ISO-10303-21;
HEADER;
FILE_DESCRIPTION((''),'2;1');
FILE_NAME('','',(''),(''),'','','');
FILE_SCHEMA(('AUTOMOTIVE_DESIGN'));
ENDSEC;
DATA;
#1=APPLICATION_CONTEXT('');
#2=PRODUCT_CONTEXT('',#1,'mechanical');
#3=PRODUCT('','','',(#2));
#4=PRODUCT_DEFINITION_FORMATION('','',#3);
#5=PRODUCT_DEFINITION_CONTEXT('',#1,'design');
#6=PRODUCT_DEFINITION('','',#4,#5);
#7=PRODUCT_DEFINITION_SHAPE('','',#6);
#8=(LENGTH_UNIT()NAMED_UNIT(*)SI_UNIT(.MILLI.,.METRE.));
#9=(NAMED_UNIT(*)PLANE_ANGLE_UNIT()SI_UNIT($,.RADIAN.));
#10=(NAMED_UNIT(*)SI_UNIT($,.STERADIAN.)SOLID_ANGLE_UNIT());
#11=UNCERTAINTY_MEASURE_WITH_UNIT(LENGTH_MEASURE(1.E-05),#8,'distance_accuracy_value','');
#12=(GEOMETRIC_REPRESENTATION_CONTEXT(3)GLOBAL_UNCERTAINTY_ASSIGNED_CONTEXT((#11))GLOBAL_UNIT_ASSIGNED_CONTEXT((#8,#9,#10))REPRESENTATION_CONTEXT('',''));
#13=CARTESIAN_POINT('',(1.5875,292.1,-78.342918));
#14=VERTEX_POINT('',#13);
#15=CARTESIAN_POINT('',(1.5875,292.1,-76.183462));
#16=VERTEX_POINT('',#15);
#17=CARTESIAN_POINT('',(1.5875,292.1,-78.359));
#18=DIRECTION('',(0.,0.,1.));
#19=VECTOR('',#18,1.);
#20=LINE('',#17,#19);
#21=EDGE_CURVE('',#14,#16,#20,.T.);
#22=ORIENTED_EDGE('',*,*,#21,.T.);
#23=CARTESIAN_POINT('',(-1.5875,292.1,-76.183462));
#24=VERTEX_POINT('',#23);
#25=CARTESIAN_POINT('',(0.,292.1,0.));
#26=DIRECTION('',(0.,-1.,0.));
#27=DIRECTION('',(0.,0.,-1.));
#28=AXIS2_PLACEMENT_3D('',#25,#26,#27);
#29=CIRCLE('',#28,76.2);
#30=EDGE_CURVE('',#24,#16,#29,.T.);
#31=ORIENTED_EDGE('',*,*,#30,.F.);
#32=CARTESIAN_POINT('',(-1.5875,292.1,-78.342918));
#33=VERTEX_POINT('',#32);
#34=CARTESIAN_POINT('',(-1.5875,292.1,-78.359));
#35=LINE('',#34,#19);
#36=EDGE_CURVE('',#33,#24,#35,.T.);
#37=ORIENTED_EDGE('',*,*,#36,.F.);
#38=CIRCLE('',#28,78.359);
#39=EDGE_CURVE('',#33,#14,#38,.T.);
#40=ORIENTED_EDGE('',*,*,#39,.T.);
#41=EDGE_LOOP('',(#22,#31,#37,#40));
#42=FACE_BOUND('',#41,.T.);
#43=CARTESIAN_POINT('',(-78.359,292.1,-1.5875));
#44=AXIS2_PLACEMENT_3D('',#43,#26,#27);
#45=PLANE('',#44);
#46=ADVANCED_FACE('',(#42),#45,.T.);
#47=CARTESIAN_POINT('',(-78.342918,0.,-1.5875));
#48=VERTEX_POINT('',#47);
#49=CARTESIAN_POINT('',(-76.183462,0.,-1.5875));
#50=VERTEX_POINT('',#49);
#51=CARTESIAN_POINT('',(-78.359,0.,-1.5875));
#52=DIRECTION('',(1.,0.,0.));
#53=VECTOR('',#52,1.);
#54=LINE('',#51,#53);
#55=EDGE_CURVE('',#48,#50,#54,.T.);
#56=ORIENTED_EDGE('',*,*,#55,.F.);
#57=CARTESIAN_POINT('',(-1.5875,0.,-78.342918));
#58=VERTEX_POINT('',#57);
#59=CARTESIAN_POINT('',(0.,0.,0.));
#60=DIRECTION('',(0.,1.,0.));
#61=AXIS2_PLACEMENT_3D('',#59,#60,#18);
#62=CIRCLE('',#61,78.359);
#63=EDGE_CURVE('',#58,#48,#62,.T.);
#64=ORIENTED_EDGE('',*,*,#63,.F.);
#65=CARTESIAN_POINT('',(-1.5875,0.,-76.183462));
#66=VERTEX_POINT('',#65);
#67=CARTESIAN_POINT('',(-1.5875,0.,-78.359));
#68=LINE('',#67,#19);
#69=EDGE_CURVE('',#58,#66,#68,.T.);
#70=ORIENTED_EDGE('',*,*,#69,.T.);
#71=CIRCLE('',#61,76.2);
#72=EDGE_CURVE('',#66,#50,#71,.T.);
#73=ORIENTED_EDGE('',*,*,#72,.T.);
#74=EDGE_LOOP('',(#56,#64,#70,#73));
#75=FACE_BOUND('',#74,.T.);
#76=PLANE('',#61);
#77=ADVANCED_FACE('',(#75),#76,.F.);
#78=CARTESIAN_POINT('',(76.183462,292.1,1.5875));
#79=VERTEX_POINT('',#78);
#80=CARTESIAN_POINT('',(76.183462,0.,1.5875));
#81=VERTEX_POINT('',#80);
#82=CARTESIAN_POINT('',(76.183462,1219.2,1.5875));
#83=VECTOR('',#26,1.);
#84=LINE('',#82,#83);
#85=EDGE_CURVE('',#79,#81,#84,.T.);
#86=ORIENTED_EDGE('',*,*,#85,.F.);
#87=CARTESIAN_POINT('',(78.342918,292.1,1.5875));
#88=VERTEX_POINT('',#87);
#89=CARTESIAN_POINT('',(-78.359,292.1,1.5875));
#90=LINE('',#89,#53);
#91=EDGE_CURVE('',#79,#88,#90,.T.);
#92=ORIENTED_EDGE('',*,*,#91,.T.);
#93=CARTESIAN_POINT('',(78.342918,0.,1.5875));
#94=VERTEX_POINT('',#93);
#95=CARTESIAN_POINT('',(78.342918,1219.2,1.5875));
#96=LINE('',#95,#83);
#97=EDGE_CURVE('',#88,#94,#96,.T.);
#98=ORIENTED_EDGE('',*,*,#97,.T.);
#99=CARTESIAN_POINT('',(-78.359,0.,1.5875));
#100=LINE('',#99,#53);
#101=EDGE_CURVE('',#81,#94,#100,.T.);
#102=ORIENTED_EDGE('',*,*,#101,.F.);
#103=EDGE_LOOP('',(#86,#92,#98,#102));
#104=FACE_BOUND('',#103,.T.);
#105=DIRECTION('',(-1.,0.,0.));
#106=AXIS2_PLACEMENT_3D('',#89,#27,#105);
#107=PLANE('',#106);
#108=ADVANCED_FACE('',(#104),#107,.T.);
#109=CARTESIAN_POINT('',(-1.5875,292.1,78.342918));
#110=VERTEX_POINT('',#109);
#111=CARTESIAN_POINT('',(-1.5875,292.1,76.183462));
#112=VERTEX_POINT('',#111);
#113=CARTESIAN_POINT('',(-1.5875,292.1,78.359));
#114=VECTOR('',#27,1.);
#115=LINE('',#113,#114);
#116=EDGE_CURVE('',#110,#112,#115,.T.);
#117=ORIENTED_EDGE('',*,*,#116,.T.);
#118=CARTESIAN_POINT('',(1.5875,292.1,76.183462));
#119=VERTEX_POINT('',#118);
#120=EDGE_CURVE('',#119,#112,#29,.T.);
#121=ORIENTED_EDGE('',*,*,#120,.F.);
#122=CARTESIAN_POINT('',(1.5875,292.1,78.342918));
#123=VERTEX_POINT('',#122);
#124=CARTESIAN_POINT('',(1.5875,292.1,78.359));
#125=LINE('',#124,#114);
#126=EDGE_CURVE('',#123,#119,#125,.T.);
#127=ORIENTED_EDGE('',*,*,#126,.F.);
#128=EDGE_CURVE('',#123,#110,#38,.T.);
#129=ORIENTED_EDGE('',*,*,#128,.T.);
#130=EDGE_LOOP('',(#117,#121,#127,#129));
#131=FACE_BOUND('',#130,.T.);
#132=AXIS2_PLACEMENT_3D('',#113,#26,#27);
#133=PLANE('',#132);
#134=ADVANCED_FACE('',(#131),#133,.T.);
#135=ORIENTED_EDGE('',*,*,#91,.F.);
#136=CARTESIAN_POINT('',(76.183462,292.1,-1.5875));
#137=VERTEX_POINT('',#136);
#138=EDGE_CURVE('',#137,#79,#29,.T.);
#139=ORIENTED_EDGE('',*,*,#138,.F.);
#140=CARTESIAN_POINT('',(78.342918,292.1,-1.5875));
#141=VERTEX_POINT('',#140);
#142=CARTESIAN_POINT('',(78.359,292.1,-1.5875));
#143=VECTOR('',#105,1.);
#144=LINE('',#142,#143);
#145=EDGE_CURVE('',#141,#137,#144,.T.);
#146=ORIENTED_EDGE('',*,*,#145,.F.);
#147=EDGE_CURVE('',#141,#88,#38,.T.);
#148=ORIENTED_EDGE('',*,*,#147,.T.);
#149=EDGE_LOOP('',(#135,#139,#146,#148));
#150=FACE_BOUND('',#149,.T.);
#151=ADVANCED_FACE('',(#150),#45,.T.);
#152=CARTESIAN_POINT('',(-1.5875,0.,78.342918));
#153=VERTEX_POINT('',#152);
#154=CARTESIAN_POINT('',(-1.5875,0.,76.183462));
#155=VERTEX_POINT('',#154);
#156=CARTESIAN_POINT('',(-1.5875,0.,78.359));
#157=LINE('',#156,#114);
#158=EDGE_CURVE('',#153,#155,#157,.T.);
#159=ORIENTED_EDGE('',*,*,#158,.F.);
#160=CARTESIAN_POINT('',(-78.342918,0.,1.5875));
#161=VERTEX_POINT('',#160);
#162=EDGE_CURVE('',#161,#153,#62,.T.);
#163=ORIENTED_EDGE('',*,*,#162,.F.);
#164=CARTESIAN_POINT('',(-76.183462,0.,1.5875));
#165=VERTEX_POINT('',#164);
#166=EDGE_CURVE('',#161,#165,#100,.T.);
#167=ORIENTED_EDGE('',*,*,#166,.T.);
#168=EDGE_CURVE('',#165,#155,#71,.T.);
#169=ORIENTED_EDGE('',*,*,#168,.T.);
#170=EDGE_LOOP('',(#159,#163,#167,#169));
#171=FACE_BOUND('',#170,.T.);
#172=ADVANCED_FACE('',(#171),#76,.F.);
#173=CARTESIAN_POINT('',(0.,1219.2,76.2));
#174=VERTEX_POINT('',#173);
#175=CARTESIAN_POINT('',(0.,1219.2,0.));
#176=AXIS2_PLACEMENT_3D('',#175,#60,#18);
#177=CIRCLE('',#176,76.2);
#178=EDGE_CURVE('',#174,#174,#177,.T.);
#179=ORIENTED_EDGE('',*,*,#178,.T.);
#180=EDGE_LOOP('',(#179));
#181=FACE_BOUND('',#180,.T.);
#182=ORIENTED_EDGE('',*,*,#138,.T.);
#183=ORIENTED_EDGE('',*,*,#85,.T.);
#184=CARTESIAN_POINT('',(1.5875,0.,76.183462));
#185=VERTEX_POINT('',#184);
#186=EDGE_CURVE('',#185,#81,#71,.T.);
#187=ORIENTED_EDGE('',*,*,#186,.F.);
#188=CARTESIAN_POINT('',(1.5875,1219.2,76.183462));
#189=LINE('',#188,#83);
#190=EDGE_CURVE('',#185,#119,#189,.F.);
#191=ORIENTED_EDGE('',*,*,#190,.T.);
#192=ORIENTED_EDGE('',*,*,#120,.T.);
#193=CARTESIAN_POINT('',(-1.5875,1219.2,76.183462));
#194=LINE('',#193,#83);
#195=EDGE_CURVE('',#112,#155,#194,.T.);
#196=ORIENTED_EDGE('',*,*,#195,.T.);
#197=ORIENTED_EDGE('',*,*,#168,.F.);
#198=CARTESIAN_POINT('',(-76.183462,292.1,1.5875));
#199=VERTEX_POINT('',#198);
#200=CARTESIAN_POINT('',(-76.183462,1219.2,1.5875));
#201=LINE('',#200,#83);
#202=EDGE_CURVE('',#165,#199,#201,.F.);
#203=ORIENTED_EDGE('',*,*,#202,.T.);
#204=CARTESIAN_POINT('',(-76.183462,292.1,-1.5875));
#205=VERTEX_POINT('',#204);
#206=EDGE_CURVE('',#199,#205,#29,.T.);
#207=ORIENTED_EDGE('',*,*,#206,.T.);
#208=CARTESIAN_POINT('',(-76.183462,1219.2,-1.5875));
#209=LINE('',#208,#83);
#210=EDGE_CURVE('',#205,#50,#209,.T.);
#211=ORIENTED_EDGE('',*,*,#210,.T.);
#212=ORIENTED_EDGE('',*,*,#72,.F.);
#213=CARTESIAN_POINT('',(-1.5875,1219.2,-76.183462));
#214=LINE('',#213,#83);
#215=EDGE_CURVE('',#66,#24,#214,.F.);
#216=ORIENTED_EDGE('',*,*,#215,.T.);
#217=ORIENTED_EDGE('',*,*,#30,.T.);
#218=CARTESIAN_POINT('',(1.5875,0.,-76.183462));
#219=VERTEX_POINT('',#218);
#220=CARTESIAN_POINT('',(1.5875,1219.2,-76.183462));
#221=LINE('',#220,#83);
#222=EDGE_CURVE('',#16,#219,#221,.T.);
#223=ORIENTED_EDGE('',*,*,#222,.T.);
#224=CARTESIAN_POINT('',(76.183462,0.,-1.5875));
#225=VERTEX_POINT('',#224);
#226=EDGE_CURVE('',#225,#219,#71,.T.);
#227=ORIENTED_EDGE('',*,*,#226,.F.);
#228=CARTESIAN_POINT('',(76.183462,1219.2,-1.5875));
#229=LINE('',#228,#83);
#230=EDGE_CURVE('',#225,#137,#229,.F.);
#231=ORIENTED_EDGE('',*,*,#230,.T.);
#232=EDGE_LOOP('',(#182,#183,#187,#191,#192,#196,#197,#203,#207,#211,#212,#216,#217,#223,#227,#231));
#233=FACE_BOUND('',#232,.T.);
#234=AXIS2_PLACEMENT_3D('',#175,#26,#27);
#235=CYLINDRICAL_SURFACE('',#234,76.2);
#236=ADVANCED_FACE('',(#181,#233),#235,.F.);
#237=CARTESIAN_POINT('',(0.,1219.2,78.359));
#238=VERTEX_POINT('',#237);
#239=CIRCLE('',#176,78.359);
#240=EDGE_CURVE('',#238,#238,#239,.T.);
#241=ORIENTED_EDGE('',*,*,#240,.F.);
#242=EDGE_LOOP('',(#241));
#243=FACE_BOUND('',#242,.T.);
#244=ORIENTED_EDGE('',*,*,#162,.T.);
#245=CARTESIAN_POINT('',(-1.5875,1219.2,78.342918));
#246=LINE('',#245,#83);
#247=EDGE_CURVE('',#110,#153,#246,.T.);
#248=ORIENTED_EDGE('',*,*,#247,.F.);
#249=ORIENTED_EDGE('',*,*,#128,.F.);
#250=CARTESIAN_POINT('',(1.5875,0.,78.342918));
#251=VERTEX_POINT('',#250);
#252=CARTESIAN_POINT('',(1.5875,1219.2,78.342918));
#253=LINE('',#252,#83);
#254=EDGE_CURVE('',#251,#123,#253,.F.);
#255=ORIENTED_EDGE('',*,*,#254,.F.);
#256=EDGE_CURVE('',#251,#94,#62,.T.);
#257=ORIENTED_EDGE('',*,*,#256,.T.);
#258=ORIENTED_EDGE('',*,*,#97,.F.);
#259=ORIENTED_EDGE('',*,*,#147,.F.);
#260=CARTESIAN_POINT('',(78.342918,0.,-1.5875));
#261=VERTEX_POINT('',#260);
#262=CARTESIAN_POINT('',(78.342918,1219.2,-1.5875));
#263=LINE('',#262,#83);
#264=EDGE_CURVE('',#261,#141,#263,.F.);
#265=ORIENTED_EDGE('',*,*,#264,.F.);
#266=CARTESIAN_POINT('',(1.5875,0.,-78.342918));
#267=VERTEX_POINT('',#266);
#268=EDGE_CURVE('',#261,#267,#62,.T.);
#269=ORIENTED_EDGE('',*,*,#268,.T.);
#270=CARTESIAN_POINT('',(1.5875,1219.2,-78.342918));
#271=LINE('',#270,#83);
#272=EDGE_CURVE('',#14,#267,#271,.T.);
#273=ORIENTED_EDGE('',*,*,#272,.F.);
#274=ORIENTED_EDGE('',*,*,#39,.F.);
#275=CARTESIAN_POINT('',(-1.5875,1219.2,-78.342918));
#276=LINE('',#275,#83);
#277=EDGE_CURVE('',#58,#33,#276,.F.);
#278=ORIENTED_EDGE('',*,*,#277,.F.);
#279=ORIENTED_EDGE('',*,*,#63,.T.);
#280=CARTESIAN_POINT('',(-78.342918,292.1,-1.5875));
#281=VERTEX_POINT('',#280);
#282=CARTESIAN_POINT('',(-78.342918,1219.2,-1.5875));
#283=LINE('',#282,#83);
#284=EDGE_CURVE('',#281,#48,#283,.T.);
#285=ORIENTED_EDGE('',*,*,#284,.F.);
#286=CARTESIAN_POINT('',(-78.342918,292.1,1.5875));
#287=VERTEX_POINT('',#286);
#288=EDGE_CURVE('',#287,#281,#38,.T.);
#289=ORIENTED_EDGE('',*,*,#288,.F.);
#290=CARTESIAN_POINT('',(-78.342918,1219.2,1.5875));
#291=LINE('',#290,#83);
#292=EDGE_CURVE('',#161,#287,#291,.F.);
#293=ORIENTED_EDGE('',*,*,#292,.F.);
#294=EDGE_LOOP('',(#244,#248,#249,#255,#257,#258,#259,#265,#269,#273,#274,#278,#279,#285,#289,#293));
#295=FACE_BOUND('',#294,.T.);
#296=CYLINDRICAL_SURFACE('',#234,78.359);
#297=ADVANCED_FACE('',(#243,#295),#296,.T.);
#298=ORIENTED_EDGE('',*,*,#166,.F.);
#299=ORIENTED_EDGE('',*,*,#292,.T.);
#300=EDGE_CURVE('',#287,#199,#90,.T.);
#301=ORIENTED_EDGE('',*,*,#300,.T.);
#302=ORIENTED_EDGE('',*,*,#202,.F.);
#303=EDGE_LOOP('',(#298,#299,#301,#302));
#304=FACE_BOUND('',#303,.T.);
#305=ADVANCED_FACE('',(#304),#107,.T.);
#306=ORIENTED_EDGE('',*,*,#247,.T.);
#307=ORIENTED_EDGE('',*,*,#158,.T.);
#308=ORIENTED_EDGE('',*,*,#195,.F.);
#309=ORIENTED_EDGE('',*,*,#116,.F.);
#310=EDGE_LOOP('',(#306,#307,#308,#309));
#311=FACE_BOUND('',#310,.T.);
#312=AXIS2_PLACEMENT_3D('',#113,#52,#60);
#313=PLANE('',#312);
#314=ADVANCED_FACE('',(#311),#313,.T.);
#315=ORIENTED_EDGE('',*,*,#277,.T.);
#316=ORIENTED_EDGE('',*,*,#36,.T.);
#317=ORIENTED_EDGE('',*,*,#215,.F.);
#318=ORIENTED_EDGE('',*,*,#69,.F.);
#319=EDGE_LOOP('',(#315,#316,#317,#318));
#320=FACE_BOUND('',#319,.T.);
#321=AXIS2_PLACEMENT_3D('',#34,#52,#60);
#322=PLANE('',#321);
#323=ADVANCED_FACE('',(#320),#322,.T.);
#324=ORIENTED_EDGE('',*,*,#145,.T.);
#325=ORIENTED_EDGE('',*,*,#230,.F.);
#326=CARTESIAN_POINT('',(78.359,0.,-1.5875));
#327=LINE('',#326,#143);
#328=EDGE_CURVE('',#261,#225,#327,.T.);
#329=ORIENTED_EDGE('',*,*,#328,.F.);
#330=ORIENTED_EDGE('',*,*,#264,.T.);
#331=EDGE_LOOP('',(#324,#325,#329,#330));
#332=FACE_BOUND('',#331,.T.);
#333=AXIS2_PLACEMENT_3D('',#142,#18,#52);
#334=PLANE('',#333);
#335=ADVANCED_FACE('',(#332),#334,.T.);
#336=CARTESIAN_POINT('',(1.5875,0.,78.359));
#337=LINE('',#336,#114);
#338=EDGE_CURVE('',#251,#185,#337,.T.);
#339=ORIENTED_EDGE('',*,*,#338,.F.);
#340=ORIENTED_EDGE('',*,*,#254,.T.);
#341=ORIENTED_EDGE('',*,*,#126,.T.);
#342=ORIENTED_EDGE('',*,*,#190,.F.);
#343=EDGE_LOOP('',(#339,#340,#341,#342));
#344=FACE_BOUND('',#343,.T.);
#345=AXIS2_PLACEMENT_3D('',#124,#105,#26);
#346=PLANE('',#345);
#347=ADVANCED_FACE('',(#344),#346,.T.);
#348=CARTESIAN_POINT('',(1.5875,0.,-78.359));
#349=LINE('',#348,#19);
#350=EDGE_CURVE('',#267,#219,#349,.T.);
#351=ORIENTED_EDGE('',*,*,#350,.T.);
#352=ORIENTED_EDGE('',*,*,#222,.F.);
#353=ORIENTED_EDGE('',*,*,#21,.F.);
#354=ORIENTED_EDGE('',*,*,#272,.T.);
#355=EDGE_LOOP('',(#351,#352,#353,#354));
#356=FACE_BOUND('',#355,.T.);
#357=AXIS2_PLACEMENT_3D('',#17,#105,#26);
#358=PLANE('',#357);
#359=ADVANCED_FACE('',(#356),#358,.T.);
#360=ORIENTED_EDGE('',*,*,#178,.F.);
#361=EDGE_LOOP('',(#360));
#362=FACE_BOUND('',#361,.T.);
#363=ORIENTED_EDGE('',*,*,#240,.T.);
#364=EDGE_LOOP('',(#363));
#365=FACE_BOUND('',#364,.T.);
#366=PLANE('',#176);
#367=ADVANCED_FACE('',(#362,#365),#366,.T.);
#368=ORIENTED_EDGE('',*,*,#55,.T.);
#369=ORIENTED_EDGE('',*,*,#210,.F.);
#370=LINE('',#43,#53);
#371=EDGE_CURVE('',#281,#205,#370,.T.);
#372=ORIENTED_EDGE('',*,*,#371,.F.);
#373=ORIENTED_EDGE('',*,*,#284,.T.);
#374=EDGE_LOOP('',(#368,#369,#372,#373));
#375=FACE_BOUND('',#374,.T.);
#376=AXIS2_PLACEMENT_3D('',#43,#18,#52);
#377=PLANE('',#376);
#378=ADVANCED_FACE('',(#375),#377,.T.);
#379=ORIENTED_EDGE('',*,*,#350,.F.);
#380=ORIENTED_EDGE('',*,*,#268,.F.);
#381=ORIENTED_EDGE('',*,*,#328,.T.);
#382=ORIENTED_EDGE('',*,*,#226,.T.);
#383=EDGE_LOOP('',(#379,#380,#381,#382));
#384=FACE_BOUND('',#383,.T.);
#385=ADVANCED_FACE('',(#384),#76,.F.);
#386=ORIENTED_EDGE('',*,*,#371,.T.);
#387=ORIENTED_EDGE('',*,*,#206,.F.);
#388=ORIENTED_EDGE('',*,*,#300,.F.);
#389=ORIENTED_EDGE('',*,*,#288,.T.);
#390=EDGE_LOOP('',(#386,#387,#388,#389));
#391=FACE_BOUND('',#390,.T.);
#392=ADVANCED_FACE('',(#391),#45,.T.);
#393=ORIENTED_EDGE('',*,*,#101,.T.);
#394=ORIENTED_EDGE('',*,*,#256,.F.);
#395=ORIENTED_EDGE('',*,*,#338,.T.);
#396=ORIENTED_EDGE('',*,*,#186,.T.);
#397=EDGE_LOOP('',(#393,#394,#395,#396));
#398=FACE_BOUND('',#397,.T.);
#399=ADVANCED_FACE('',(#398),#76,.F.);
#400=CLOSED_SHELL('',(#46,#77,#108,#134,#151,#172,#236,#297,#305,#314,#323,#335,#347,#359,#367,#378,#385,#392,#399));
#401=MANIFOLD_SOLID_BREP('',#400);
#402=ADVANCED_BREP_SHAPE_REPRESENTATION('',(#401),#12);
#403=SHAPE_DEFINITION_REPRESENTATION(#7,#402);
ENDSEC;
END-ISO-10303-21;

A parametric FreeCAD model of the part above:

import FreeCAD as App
import Part
import Sketcher
from FreeCAD import Vector
Q = App.Units.Quantity


def add_polygon(sketch, points):
    """Adds a closed chain of lines whose ends are joined by coincident constraints."""
    first, n = sketch.GeometryCount, len(points)
    for a, b in zip(points, points[1:] + points[:1]):
        sketch.addGeometry(Part.LineSegment(App.Vector(*a, 0), App.Vector(*b, 0)), False)
    for i in range(n):
        sketch.addConstraint(Sketcher.Constraint("Coincident", first + i, 2, first + (i + 1) % n, 1))

doc = App.newDocument("Part")
body = doc.addObject("PartDesign::Body", "Body")

# Sketch on XZ plane
sketch1 = doc.addObject("Sketcher::SketchObject", "Sketch")
body.addObject(sketch1)
sketch1.AttachmentSupport = (doc.XZ_Plane, [""])
sketch1.MapMode = "FlatFace"
sketch1.addGeometry(Part.Circle(Vector(0, 0, 0), Vector(0, 0, 1), 78.359), False)
sketch1.addGeometry(Part.Circle(Vector(0, 0, 0), Vector(0, 0, 1), 76.2), False)
sketch1.addConstraint(Sketcher.Constraint("Coincident", 0, 3, -1, 1))
sketch1.addConstraint(Sketcher.Constraint("Coincident", 1, 3, -1, 1))
sketch1.addConstraint(Sketcher.Constraint("Diameter", 1, Q("6 in")))
sketch1.addConstraint(Sketcher.Constraint("Diameter", 0, Q("6.17 in")))
pad1 = doc.addObject("PartDesign::Pad", "Pad")
body.addObject(pad1)
pad1.Profile = sketch1
pad1.Length = Q("48 in")
pad1.Reversed = True

# Sketch on XY plane
sketch2 = doc.addObject("Sketcher::SketchObject", "Sketch001")
body.addObject(sketch2)
sketch2.AttachmentSupport = (doc.XY_Plane, [""])
sketch2.MapMode = "FlatFace"
add_polygon(sketch2, [(-1.5875, 292.1), (-1.5875, 0), (1.5875, 0), (1.5875, 292.1)])  # lines 0-3
sketch2.addConstraint(Sketcher.Constraint("Vertical", 0))
sketch2.addConstraint(Sketcher.Constraint("Horizontal", 1))
sketch2.addConstraint(Sketcher.Constraint("Vertical", 2))
sketch2.addConstraint(Sketcher.Constraint("Horizontal", 3))
sketch2.addConstraint(Sketcher.Constraint("Symmetric", 0, 2, 1, 2, -1, 1))
sketch2.addConstraint(Sketcher.Constraint("DistanceY", 0, 2, 0, 1, Q("11.5 in")))
sketch2.addConstraint(Sketcher.Constraint("DistanceX", 1, 1, 1, 2, Q("0.125 in")))
pocket1 = doc.addObject("PartDesign::Pocket", "Pocket")
body.addObject(pocket1)
pocket1.Profile = sketch2
pocket1.Type = "ThroughAll"
pocket1.Reversed = True
doc.recompute()

polarpattern = doc.addObject("PartDesign::PolarPattern", "PolarPattern")
body.addObject(polarpattern)
polarpattern.Originals = [pocket1]
polarpattern.Axis = (doc.Y_Axis, [""])
polarpattern.Angle = 360
polarpattern.Occurrences = 4
body.Tip = polarpattern

doc.recompute()
